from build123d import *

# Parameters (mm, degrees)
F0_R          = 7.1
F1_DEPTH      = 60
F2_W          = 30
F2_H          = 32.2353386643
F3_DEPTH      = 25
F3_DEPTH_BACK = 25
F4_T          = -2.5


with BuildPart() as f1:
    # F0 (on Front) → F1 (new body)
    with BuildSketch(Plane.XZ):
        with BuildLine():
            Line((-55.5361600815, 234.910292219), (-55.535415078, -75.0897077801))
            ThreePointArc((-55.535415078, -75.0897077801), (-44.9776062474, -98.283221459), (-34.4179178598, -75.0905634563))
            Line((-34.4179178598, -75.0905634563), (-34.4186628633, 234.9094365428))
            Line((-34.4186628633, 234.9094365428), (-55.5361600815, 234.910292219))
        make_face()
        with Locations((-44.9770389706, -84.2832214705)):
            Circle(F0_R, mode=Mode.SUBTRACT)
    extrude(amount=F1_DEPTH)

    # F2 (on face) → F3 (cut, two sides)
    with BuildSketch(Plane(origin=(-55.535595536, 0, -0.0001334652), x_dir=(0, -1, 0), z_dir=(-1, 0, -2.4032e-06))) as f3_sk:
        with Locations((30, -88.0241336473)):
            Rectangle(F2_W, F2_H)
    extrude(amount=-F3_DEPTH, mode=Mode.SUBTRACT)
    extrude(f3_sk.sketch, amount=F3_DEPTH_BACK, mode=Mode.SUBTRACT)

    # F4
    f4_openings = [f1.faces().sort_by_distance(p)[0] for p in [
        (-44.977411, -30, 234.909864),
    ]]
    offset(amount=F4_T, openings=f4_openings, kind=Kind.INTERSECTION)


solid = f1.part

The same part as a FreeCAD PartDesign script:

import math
import FreeCAD as App
import Part
import Sketcher

V = App.Vector
Q = App.Units.Quantity


def faces_at(feature, points):
    """Names of the faces that lie closest to the given points."""
    faces = feature.Shape.Faces
    near = lambda p: min(range(len(faces)), key=lambda i: faces[i].distToShape(Part.Vertex(*p))[0])
    return sorted({f"Face{near(p) + 1}" for p in points})


def add_polygon(sketch, points):
    """Adds a closed chain of lines whose ends are joined by coincident constraints."""
    first, n = sketch.GeometryCount, len(points)
    for a, b in zip(points, points[1:] + points[:1]):
        sketch.addGeometry(Part.LineSegment(App.Vector(*a, 0), App.Vector(*b, 0)), False)
    for i in range(n):
        sketch.addConstraint(Sketcher.Constraint("Coincident", first + i, 2, first + (i + 1) % n, 1))

doc = App.newDocument("Part")
body = doc.addObject("PartDesign::Body", "Body")

# Sketch on XZ plane
sketch1 = body.newObject("Sketcher::SketchObject", "Sketch")
sketch1.AttachmentSupport = (doc.getObject("XZ_Plane"), [""])
sketch1.MapMode = "FlatFace"
sketch1.addGeometry(Part.LineSegment(V(-56, 235, 0), V(-56, -75, 0)), False)
sketch1.addGeometry(Part.ArcOfCircle(Part.Circle(V(-45, -84, 0), V(0, 0, 1), 14), math.radians(139), math.radians(401)), False)
sketch1.addGeometry(Part.LineSegment(V(-34, -75, 0), V(-34, 235, 0)), False)
sketch1.addGeometry(Part.LineSegment(V(-34, 235, 0), V(-56, 235, 0)), False)
sketch1.addGeometry(Part.Circle(V(-45, -84, 0), V(0, 0, 1), 7), False)
sketch1.addConstraint(Sketcher.Constraint("Coincident", 0, 2, 1, 1))
sketch1.addConstraint(Sketcher.Constraint("Coincident", 1, 2, 2, 1))
sketch1.addConstraint(Sketcher.Constraint("Coincident", 2, 2, 3, 1))
sketch1.addConstraint(Sketcher.Constraint("Coincident", 3, 2, 0, 1))
sketch1.addConstraint(Sketcher.Constraint("Coincident", 4, 3, 1, 3))
sketch1.addConstraint(Sketcher.Constraint("Parallel", 0, 2))
sketch1.addConstraint(Sketcher.Constraint("Equal", 0, 2))
sketch1.addConstraint(Sketcher.Constraint("Radius", 1, Q("14 mm")))
sketch1.addConstraint(Sketcher.Constraint("Diameter", 4, Q("14.2 mm")))
sketch1.addConstraint(Sketcher.Constraint("Distance", 0, Q("310 mm")))
sketch1.addConstraint(Sketcher.Constraint("DistanceX", 1, 3, -1, 1, Q("44.977039 mm")))
sketch1.addConstraint(Sketcher.Constraint("DistanceY", 1, 3, -1, 1, Q("84.283221 mm")))
sketch1.addConstraint(Sketcher.Constraint("DistanceX", 3, 2, -1, 1, Q("55.53616 mm")))
sketch1.addConstraint(Sketcher.Constraint("DistanceX", 4, 3, 1, 2, Q("10.559121 mm")))
sketch1.addConstraint(Sketcher.Constraint("Distance", 3, Q("21.117497 mm")))
pad1 = body.newObject("PartDesign::Pad", "Pad")
pad1.Profile = sketch1
pad1.Length = 60

# Sketch on YZ plane
sketch2 = body.newObject("Sketcher::SketchObject", "Sketch001")
sketch2.AttachmentSupport = (doc.getObject("YZ_Plane"), [""])
sketch2.MapMode = "FlatFace"
sketch2.AttachmentOffset = App.Placement(V(0, 0, -55.535596), App.Rotation())
add_polygon(sketch2, [(-15, -72), (-15, -104), (-45, -104), (-45, -72)])  # lines 0-3
sketch2.addConstraint(Sketcher.Constraint("Vertical", 0))
sketch2.addConstraint(Sketcher.Constraint("Horizontal", 1))
sketch2.addConstraint(Sketcher.Constraint("Vertical", 2))
sketch2.addConstraint(Sketcher.Constraint("Horizontal", 3))
sketch2.addConstraint(Sketcher.Constraint("DistanceX", 1, 2, 1, 1, Q("30 mm")))
sketch2.addConstraint(Sketcher.Constraint("DistanceX", 0, 2, -1, 1, Q("15 mm")))
sketch2.addConstraint(Sketcher.Constraint("DistanceY", 0, 2, 0, 1, Q("32.235339 mm")))
sketch2.addConstraint(Sketcher.Constraint("DistanceY", 0, 2, -1, 1, Q("104.141936 mm")))
pocket1 = body.newObject("PartDesign::Pocket", "Pocket")
pocket1.Profile = sketch2
pocket1.Type = "ThroughAll"
pocket1.Midplane = True
doc.recompute()

thickness = body.newObject("PartDesign::Thickness", "Thickness")
thickness.Base = (pocket1, faces_at(pocket1, [(-44.977, -30, 234.91)]))
thickness.Value = 2.5
thickness.Reversed = True
thickness.Join = "Intersection"

doc.recompute()
